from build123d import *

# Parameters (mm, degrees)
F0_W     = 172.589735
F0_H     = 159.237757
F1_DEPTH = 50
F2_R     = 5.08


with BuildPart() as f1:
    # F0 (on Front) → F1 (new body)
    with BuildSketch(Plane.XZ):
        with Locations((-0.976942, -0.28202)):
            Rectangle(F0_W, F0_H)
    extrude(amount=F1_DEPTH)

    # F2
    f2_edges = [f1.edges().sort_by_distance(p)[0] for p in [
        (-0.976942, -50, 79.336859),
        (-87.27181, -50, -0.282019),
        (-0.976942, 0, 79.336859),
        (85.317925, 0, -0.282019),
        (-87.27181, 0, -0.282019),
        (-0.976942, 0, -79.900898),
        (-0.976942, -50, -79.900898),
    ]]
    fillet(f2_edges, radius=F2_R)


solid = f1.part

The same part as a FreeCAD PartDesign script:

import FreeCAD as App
import Part
import Sketcher
Q = App.Units.Quantity


def edges_at(feature, points):
    """Names of the edges that pass closest to the given points."""
    edges = feature.Shape.Edges
    near = lambda p: min(range(len(edges)), key=lambda i: edges[i].distToShape(Part.Vertex(*p))[0])
    return sorted({f"Edge{near(p) + 1}" for p in points})


def add_polygon(sketch, points):
    """Adds a closed chain of lines whose ends are joined by coincident constraints."""
    first, n = sketch.GeometryCount, len(points)
    for a, b in zip(points, points[1:] + points[:1]):
        sketch.addGeometry(Part.LineSegment(App.Vector(*a, 0), App.Vector(*b, 0)), False)
    for i in range(n):
        sketch.addConstraint(Sketcher.Constraint("Coincident", first + i, 2, first + (i + 1) % n, 1))

doc = App.newDocument("Part")
body = doc.addObject("PartDesign::Body", "Body")

sketch1 = body.newObject("Sketcher::SketchObject", "Sketch")
sketch1.AttachmentSupport = (doc.getObject("XZ_Plane"), [""])
sketch1.MapMode = "FlatFace"
add_polygon(sketch1, [(-87, 79), (-87, -80), (85, -80), (85, 79)])
sketch1.addConstraint([
    Sketcher.Constraint("Vertical", 0),
    Sketcher.Constraint("Horizontal", 1),
    Sketcher.Constraint("Vertical", 2),
    Sketcher.Constraint("Horizontal", 3),
    Sketcher.Constraint("DistanceY", 0, 2, -1, 1, Q("79.900898 mm")),
    Sketcher.Constraint("DistanceX", 1, 1, 1, 2, Q("172.589735 mm")),
    Sketcher.Constraint("DistanceY", 0, 2, 0, 1, Q("159.237757 mm")),
    Sketcher.Constraint("DistanceX", 0, 2, -1, 1, Q("87.27181 mm")),
])
pad1 = body.newObject("PartDesign::Pad", "Pad")
pad1.Profile = sketch1
pad1.Length = 50
doc.recompute()

fillet = body.newObject("PartDesign::Fillet", "Fillet")
fillet.Base = (pad1, edges_at(pad1, [
    (-0.977, -50, 79.337),
    (-87.272, -50, -0.282),
    (-0.977, 0, 79.337),
    (85.318, 0, -0.282),
    (-87.272, 0, -0.282),
    (-0.977, 0, -79.901),
    (-0.977, -50, -79.901),
]))
fillet.Radius = 5.08

doc.recompute()
